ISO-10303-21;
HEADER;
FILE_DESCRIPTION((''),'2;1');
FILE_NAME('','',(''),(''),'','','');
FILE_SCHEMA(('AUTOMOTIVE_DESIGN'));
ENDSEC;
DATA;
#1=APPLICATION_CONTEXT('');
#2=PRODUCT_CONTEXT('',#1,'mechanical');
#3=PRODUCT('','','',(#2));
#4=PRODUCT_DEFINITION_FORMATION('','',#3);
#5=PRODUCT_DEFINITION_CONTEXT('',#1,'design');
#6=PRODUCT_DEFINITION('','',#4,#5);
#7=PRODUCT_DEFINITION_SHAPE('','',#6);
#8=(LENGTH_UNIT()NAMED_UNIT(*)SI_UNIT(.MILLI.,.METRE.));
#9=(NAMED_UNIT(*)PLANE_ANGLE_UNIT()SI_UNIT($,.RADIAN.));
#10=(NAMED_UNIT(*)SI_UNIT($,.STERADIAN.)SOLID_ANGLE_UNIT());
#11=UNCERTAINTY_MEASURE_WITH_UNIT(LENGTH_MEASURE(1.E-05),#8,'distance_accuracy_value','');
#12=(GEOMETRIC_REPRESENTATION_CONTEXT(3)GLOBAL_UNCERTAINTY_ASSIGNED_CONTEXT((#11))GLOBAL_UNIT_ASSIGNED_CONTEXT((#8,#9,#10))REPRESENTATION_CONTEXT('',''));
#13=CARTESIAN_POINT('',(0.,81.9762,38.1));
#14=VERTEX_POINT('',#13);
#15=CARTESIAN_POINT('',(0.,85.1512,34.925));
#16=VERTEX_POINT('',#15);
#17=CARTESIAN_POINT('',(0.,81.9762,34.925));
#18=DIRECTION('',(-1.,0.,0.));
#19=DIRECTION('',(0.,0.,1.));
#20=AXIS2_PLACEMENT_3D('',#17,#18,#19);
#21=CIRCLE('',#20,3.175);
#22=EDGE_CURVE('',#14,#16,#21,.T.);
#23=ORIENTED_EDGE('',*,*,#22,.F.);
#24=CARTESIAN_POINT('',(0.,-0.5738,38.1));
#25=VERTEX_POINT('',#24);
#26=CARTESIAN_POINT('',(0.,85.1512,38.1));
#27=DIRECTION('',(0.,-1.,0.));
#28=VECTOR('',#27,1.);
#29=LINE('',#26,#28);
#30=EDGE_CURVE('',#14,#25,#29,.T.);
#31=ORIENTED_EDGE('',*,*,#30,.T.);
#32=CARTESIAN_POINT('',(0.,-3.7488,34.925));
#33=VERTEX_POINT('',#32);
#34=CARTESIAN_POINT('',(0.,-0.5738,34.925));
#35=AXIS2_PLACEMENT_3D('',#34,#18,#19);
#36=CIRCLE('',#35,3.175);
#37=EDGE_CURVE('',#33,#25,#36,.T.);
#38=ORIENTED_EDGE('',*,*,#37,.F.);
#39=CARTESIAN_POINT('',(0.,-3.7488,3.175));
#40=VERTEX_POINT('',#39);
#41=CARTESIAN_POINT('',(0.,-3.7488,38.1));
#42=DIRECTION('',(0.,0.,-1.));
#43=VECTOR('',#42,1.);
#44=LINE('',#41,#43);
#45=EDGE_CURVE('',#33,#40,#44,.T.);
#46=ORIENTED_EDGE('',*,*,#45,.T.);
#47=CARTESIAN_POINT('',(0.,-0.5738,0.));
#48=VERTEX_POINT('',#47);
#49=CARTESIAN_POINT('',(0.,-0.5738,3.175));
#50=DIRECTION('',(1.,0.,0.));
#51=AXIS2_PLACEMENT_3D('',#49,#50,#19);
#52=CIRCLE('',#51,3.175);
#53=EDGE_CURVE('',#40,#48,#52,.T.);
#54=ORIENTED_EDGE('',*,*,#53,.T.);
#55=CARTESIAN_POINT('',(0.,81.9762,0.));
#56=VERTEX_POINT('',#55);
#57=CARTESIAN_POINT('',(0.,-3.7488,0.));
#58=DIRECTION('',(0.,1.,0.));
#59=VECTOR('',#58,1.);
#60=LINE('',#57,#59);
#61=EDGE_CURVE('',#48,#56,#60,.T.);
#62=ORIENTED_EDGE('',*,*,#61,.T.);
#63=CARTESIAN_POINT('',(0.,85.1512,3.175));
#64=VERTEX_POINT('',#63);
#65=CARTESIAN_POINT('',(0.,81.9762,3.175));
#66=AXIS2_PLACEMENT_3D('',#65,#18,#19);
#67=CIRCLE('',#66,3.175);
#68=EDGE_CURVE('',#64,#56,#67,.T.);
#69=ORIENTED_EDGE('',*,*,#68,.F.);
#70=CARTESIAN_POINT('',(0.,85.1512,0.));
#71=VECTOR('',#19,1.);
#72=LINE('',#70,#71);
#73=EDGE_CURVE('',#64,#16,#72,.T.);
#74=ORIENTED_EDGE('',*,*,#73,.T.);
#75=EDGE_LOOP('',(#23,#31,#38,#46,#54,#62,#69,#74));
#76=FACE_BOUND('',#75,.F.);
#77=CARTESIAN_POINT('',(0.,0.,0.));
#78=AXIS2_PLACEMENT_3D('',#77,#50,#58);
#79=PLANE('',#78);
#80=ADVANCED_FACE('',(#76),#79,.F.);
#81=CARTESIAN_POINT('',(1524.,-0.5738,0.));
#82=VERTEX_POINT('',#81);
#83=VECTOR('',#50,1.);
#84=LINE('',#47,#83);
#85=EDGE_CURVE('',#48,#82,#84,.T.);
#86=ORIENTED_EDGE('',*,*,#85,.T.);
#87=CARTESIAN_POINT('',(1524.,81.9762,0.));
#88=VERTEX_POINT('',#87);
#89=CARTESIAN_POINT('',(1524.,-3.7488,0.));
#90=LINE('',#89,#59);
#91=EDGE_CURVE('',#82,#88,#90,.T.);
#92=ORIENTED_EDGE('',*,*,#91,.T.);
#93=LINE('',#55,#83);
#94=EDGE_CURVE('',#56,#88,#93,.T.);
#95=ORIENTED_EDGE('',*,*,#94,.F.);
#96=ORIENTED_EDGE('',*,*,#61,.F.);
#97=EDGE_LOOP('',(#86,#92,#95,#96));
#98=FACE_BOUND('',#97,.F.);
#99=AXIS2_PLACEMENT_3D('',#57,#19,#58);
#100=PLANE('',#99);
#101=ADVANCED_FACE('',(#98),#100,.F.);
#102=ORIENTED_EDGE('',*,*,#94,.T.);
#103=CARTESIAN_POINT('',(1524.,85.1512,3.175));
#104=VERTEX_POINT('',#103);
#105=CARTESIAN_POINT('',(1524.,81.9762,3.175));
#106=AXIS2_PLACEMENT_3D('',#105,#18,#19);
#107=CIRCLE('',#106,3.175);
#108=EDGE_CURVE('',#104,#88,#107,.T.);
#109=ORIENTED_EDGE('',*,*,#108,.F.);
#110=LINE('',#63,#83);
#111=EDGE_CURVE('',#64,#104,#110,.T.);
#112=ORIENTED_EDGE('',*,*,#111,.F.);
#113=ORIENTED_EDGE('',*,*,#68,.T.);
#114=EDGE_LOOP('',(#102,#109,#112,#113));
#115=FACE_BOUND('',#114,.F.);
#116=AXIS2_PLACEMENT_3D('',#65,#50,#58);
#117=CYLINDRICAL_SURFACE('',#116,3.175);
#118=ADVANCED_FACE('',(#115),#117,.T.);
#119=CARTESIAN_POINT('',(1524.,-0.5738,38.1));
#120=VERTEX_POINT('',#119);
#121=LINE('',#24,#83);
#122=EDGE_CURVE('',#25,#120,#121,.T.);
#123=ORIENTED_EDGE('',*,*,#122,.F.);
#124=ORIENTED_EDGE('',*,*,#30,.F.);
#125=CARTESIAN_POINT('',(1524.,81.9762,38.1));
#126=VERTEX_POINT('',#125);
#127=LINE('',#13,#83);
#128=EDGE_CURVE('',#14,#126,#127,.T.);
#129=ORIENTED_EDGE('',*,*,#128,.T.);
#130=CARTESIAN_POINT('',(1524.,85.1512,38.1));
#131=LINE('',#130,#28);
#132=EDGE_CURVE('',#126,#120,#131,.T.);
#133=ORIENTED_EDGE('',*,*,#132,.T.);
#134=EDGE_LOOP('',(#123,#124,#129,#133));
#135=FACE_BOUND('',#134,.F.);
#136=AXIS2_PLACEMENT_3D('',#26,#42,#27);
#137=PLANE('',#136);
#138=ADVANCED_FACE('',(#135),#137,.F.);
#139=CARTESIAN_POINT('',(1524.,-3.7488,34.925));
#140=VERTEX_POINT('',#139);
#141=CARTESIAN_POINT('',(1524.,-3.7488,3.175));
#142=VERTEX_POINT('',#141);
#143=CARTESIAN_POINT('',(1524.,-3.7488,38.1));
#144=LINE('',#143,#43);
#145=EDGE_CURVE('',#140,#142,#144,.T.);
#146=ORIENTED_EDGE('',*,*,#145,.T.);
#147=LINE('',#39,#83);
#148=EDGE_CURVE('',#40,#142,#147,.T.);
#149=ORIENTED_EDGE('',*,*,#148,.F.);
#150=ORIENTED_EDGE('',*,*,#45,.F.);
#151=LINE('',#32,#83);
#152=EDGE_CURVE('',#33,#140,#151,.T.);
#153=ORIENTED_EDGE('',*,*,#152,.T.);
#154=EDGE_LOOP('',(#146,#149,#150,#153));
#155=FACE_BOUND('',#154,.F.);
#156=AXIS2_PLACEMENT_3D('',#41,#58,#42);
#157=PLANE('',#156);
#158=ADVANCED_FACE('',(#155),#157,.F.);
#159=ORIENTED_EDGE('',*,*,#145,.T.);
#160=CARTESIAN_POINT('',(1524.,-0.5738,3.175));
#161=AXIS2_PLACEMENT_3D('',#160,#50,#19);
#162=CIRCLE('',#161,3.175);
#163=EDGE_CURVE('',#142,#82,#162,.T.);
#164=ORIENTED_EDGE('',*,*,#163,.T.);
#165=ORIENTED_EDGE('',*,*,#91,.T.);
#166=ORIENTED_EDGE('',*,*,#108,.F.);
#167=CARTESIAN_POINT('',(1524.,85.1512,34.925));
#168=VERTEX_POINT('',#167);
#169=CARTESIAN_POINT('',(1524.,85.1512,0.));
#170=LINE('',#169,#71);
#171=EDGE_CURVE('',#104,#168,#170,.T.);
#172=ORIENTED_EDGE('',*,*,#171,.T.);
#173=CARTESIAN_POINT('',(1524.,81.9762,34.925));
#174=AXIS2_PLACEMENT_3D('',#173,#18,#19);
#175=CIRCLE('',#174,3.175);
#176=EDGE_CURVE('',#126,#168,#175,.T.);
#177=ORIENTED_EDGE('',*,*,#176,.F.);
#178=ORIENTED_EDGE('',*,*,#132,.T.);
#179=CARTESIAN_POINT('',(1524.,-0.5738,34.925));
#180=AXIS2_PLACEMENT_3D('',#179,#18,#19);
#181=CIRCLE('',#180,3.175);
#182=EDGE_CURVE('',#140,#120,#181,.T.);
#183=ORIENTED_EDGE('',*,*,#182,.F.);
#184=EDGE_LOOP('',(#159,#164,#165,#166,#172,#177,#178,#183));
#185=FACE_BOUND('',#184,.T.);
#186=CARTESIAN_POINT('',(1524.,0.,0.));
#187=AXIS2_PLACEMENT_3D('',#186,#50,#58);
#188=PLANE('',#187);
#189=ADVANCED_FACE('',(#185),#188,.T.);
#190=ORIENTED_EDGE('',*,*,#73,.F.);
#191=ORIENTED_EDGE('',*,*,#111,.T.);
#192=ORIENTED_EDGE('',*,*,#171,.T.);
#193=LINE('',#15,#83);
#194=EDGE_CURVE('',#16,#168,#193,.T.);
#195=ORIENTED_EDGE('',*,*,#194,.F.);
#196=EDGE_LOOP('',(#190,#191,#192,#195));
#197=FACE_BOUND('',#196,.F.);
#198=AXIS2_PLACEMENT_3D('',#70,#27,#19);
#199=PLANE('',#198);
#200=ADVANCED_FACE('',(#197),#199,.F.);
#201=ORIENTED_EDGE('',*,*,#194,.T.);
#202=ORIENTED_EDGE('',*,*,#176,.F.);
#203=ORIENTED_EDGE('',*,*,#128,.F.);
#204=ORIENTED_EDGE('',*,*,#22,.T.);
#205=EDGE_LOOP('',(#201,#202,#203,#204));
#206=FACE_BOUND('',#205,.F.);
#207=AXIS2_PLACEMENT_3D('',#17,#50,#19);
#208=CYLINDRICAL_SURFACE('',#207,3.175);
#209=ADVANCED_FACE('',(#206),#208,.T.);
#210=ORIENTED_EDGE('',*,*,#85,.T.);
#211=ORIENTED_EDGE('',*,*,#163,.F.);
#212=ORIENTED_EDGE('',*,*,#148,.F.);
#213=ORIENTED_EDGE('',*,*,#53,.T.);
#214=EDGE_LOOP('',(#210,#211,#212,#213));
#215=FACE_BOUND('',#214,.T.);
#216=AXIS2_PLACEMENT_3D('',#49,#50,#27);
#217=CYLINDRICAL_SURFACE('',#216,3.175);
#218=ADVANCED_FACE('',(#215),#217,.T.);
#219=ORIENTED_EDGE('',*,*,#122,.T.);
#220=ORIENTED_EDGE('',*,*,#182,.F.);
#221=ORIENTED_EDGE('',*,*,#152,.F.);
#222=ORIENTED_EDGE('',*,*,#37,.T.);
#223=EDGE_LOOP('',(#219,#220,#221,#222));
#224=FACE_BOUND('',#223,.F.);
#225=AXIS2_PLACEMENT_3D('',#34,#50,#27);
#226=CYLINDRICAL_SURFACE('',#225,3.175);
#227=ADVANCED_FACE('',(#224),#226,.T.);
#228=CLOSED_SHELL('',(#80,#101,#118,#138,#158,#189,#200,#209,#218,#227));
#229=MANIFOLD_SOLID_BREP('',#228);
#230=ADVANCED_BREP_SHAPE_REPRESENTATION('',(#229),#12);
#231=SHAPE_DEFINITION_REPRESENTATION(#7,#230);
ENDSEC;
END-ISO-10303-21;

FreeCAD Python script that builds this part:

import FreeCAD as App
import Part
import Sketcher

V = App.Vector
Q = App.Units.Quantity


def edges_at(feature, points):
    """Names of the edges that pass closest to the given points."""
    edges = feature.Shape.Edges
    near = lambda p: min(range(len(edges)), key=lambda i: edges[i].distToShape(Part.Vertex(*p))[0])
    return sorted({f"Edge{near(p) + 1}" for p in points})


def add_polygon(sketch, points):
    """Adds a closed chain of lines whose ends are joined by coincident constraints."""
    first, n = sketch.GeometryCount, len(points)
    for a, b in zip(points, points[1:] + points[:1]):
        sketch.addGeometry(Part.LineSegment(App.Vector(*a, 0), App.Vector(*b, 0)), False)
    for i in range(n):
        sketch.addConstraint(Sketcher.Constraint("Coincident", first + i, 2, first + (i + 1) % n, 1))

doc = App.newDocument("Part")
body = doc.addObject("PartDesign::Body", "Body")

# Sketch on YZ plane
sketch1 = doc.addObject("Sketcher::SketchObject", "Sketch")
body.addObject(sketch1)
sketch1.AttachmentSupport = (doc.YZ_Plane, [""])
sketch1.MapMode = "FlatFace"
add_polygon(sketch1, [(-3.7488, 38.1), (-3.7488, 0), (85.1512, 0), (85.1512, 38.1)])  # lines 0-3
sketch1.addConstraint(Sketcher.Constraint("Vertical", 0))
sketch1.addConstraint(Sketcher.Constraint("Horizontal", 1))
sketch1.addConstraint(Sketcher.Constraint("Vertical", 2))
sketch1.addConstraint(Sketcher.Constraint("Horizontal", 3))
sketch1.addConstraint(Sketcher.Constraint("PointOnObject", 0, 2, -1))
sketch1.addConstraint(Sketcher.Constraint("DistanceX", 1, 1, 1, 2, Q("3.5 in")))
sketch1.addConstraint(Sketcher.Constraint("DistanceY", 0, 2, 0, 1, Q("1.5 in")))
sketch1.addConstraint(Sketcher.Constraint("DistanceX", 0, 2, -1, 1, Q("0.1476 in")))
pad1 = doc.addObject("PartDesign::Pad", "Pad")
body.addObject(pad1)
pad1.Profile = sketch1
pad1.Length = Q("60 in")
doc.recompute()

fillet = doc.addObject("PartDesign::Fillet", "Fillet")
body.addObject(fillet)
fillet.Base = (pad1, edges_at(pad1, [
    (762, 85.151, 38.1),
    (762, 85.151, 0),
    (762, -3.749, 0),
    (762, -3.749, 38.1),
]))
fillet.Radius = Q("0.125 in")

doc.recompute()
